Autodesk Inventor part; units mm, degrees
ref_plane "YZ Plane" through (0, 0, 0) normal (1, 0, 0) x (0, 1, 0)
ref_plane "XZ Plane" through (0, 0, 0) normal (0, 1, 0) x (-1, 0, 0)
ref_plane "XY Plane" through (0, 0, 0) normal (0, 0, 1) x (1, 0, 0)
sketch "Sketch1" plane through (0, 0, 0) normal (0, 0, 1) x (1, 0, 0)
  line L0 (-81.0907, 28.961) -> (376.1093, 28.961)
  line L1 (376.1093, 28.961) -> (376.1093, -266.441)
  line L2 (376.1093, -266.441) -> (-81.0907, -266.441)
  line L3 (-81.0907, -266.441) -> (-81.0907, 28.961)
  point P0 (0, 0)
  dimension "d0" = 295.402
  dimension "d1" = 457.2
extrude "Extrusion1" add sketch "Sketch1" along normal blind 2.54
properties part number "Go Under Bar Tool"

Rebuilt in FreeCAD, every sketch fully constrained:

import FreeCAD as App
import Part
import Sketcher
Q = App.Units.Quantity


def add_polygon(sketch, points):
    """Adds a closed chain of lines whose ends are joined by coincident constraints."""
    first, n = sketch.GeometryCount, len(points)
    for a, b in zip(points, points[1:] + points[:1]):
        sketch.addGeometry(Part.LineSegment(App.Vector(*a, 0), App.Vector(*b, 0)), False)
    for i in range(n):
        sketch.addConstraint(Sketcher.Constraint("Coincident", first + i, 2, first + (i + 1) % n, 1))

doc = App.newDocument("Part")
body = doc.addObject("PartDesign::Body", "Body")

sketch1 = body.newObject("Sketcher::SketchObject", "Sketch")
sketch1.AttachmentSupport = (doc.getObject("XY_Plane"), [""])
sketch1.MapMode = "FlatFace"
add_polygon(sketch1, [(376, 29), (-81, 29), (-81, -266), (376, -266)])
sketch1.addConstraint(Sketcher.Constraint("Horizontal", 0))
sketch1.addConstraint(Sketcher.Constraint("Vertical", 1))
sketch1.addConstraint(Sketcher.Constraint("Horizontal", 2))
sketch1.addConstraint(Sketcher.Constraint("Vertical", 3))
sketch1.addConstraint(Sketcher.Constraint("DistanceX", 0, 2, 0, 1, Q("18 in")))
sketch1.addConstraint(Sketcher.Constraint("DistanceY", 1, 2, 1, 1, Q("11.63 in")))
sketch1.addConstraint(Sketcher.Constraint("DistanceY", -1, 1, 0, 2, Q("1.1402 in")))
sketch1.addConstraint(Sketcher.Constraint("DistanceX", 0, 2, -1, 1, Q("81.0907 mm")))
pad1 = body.newObject("PartDesign::Pad", "Pad")
pad1.Profile = sketch1
pad1.Length = Q("0.1 in")

doc.recompute()
